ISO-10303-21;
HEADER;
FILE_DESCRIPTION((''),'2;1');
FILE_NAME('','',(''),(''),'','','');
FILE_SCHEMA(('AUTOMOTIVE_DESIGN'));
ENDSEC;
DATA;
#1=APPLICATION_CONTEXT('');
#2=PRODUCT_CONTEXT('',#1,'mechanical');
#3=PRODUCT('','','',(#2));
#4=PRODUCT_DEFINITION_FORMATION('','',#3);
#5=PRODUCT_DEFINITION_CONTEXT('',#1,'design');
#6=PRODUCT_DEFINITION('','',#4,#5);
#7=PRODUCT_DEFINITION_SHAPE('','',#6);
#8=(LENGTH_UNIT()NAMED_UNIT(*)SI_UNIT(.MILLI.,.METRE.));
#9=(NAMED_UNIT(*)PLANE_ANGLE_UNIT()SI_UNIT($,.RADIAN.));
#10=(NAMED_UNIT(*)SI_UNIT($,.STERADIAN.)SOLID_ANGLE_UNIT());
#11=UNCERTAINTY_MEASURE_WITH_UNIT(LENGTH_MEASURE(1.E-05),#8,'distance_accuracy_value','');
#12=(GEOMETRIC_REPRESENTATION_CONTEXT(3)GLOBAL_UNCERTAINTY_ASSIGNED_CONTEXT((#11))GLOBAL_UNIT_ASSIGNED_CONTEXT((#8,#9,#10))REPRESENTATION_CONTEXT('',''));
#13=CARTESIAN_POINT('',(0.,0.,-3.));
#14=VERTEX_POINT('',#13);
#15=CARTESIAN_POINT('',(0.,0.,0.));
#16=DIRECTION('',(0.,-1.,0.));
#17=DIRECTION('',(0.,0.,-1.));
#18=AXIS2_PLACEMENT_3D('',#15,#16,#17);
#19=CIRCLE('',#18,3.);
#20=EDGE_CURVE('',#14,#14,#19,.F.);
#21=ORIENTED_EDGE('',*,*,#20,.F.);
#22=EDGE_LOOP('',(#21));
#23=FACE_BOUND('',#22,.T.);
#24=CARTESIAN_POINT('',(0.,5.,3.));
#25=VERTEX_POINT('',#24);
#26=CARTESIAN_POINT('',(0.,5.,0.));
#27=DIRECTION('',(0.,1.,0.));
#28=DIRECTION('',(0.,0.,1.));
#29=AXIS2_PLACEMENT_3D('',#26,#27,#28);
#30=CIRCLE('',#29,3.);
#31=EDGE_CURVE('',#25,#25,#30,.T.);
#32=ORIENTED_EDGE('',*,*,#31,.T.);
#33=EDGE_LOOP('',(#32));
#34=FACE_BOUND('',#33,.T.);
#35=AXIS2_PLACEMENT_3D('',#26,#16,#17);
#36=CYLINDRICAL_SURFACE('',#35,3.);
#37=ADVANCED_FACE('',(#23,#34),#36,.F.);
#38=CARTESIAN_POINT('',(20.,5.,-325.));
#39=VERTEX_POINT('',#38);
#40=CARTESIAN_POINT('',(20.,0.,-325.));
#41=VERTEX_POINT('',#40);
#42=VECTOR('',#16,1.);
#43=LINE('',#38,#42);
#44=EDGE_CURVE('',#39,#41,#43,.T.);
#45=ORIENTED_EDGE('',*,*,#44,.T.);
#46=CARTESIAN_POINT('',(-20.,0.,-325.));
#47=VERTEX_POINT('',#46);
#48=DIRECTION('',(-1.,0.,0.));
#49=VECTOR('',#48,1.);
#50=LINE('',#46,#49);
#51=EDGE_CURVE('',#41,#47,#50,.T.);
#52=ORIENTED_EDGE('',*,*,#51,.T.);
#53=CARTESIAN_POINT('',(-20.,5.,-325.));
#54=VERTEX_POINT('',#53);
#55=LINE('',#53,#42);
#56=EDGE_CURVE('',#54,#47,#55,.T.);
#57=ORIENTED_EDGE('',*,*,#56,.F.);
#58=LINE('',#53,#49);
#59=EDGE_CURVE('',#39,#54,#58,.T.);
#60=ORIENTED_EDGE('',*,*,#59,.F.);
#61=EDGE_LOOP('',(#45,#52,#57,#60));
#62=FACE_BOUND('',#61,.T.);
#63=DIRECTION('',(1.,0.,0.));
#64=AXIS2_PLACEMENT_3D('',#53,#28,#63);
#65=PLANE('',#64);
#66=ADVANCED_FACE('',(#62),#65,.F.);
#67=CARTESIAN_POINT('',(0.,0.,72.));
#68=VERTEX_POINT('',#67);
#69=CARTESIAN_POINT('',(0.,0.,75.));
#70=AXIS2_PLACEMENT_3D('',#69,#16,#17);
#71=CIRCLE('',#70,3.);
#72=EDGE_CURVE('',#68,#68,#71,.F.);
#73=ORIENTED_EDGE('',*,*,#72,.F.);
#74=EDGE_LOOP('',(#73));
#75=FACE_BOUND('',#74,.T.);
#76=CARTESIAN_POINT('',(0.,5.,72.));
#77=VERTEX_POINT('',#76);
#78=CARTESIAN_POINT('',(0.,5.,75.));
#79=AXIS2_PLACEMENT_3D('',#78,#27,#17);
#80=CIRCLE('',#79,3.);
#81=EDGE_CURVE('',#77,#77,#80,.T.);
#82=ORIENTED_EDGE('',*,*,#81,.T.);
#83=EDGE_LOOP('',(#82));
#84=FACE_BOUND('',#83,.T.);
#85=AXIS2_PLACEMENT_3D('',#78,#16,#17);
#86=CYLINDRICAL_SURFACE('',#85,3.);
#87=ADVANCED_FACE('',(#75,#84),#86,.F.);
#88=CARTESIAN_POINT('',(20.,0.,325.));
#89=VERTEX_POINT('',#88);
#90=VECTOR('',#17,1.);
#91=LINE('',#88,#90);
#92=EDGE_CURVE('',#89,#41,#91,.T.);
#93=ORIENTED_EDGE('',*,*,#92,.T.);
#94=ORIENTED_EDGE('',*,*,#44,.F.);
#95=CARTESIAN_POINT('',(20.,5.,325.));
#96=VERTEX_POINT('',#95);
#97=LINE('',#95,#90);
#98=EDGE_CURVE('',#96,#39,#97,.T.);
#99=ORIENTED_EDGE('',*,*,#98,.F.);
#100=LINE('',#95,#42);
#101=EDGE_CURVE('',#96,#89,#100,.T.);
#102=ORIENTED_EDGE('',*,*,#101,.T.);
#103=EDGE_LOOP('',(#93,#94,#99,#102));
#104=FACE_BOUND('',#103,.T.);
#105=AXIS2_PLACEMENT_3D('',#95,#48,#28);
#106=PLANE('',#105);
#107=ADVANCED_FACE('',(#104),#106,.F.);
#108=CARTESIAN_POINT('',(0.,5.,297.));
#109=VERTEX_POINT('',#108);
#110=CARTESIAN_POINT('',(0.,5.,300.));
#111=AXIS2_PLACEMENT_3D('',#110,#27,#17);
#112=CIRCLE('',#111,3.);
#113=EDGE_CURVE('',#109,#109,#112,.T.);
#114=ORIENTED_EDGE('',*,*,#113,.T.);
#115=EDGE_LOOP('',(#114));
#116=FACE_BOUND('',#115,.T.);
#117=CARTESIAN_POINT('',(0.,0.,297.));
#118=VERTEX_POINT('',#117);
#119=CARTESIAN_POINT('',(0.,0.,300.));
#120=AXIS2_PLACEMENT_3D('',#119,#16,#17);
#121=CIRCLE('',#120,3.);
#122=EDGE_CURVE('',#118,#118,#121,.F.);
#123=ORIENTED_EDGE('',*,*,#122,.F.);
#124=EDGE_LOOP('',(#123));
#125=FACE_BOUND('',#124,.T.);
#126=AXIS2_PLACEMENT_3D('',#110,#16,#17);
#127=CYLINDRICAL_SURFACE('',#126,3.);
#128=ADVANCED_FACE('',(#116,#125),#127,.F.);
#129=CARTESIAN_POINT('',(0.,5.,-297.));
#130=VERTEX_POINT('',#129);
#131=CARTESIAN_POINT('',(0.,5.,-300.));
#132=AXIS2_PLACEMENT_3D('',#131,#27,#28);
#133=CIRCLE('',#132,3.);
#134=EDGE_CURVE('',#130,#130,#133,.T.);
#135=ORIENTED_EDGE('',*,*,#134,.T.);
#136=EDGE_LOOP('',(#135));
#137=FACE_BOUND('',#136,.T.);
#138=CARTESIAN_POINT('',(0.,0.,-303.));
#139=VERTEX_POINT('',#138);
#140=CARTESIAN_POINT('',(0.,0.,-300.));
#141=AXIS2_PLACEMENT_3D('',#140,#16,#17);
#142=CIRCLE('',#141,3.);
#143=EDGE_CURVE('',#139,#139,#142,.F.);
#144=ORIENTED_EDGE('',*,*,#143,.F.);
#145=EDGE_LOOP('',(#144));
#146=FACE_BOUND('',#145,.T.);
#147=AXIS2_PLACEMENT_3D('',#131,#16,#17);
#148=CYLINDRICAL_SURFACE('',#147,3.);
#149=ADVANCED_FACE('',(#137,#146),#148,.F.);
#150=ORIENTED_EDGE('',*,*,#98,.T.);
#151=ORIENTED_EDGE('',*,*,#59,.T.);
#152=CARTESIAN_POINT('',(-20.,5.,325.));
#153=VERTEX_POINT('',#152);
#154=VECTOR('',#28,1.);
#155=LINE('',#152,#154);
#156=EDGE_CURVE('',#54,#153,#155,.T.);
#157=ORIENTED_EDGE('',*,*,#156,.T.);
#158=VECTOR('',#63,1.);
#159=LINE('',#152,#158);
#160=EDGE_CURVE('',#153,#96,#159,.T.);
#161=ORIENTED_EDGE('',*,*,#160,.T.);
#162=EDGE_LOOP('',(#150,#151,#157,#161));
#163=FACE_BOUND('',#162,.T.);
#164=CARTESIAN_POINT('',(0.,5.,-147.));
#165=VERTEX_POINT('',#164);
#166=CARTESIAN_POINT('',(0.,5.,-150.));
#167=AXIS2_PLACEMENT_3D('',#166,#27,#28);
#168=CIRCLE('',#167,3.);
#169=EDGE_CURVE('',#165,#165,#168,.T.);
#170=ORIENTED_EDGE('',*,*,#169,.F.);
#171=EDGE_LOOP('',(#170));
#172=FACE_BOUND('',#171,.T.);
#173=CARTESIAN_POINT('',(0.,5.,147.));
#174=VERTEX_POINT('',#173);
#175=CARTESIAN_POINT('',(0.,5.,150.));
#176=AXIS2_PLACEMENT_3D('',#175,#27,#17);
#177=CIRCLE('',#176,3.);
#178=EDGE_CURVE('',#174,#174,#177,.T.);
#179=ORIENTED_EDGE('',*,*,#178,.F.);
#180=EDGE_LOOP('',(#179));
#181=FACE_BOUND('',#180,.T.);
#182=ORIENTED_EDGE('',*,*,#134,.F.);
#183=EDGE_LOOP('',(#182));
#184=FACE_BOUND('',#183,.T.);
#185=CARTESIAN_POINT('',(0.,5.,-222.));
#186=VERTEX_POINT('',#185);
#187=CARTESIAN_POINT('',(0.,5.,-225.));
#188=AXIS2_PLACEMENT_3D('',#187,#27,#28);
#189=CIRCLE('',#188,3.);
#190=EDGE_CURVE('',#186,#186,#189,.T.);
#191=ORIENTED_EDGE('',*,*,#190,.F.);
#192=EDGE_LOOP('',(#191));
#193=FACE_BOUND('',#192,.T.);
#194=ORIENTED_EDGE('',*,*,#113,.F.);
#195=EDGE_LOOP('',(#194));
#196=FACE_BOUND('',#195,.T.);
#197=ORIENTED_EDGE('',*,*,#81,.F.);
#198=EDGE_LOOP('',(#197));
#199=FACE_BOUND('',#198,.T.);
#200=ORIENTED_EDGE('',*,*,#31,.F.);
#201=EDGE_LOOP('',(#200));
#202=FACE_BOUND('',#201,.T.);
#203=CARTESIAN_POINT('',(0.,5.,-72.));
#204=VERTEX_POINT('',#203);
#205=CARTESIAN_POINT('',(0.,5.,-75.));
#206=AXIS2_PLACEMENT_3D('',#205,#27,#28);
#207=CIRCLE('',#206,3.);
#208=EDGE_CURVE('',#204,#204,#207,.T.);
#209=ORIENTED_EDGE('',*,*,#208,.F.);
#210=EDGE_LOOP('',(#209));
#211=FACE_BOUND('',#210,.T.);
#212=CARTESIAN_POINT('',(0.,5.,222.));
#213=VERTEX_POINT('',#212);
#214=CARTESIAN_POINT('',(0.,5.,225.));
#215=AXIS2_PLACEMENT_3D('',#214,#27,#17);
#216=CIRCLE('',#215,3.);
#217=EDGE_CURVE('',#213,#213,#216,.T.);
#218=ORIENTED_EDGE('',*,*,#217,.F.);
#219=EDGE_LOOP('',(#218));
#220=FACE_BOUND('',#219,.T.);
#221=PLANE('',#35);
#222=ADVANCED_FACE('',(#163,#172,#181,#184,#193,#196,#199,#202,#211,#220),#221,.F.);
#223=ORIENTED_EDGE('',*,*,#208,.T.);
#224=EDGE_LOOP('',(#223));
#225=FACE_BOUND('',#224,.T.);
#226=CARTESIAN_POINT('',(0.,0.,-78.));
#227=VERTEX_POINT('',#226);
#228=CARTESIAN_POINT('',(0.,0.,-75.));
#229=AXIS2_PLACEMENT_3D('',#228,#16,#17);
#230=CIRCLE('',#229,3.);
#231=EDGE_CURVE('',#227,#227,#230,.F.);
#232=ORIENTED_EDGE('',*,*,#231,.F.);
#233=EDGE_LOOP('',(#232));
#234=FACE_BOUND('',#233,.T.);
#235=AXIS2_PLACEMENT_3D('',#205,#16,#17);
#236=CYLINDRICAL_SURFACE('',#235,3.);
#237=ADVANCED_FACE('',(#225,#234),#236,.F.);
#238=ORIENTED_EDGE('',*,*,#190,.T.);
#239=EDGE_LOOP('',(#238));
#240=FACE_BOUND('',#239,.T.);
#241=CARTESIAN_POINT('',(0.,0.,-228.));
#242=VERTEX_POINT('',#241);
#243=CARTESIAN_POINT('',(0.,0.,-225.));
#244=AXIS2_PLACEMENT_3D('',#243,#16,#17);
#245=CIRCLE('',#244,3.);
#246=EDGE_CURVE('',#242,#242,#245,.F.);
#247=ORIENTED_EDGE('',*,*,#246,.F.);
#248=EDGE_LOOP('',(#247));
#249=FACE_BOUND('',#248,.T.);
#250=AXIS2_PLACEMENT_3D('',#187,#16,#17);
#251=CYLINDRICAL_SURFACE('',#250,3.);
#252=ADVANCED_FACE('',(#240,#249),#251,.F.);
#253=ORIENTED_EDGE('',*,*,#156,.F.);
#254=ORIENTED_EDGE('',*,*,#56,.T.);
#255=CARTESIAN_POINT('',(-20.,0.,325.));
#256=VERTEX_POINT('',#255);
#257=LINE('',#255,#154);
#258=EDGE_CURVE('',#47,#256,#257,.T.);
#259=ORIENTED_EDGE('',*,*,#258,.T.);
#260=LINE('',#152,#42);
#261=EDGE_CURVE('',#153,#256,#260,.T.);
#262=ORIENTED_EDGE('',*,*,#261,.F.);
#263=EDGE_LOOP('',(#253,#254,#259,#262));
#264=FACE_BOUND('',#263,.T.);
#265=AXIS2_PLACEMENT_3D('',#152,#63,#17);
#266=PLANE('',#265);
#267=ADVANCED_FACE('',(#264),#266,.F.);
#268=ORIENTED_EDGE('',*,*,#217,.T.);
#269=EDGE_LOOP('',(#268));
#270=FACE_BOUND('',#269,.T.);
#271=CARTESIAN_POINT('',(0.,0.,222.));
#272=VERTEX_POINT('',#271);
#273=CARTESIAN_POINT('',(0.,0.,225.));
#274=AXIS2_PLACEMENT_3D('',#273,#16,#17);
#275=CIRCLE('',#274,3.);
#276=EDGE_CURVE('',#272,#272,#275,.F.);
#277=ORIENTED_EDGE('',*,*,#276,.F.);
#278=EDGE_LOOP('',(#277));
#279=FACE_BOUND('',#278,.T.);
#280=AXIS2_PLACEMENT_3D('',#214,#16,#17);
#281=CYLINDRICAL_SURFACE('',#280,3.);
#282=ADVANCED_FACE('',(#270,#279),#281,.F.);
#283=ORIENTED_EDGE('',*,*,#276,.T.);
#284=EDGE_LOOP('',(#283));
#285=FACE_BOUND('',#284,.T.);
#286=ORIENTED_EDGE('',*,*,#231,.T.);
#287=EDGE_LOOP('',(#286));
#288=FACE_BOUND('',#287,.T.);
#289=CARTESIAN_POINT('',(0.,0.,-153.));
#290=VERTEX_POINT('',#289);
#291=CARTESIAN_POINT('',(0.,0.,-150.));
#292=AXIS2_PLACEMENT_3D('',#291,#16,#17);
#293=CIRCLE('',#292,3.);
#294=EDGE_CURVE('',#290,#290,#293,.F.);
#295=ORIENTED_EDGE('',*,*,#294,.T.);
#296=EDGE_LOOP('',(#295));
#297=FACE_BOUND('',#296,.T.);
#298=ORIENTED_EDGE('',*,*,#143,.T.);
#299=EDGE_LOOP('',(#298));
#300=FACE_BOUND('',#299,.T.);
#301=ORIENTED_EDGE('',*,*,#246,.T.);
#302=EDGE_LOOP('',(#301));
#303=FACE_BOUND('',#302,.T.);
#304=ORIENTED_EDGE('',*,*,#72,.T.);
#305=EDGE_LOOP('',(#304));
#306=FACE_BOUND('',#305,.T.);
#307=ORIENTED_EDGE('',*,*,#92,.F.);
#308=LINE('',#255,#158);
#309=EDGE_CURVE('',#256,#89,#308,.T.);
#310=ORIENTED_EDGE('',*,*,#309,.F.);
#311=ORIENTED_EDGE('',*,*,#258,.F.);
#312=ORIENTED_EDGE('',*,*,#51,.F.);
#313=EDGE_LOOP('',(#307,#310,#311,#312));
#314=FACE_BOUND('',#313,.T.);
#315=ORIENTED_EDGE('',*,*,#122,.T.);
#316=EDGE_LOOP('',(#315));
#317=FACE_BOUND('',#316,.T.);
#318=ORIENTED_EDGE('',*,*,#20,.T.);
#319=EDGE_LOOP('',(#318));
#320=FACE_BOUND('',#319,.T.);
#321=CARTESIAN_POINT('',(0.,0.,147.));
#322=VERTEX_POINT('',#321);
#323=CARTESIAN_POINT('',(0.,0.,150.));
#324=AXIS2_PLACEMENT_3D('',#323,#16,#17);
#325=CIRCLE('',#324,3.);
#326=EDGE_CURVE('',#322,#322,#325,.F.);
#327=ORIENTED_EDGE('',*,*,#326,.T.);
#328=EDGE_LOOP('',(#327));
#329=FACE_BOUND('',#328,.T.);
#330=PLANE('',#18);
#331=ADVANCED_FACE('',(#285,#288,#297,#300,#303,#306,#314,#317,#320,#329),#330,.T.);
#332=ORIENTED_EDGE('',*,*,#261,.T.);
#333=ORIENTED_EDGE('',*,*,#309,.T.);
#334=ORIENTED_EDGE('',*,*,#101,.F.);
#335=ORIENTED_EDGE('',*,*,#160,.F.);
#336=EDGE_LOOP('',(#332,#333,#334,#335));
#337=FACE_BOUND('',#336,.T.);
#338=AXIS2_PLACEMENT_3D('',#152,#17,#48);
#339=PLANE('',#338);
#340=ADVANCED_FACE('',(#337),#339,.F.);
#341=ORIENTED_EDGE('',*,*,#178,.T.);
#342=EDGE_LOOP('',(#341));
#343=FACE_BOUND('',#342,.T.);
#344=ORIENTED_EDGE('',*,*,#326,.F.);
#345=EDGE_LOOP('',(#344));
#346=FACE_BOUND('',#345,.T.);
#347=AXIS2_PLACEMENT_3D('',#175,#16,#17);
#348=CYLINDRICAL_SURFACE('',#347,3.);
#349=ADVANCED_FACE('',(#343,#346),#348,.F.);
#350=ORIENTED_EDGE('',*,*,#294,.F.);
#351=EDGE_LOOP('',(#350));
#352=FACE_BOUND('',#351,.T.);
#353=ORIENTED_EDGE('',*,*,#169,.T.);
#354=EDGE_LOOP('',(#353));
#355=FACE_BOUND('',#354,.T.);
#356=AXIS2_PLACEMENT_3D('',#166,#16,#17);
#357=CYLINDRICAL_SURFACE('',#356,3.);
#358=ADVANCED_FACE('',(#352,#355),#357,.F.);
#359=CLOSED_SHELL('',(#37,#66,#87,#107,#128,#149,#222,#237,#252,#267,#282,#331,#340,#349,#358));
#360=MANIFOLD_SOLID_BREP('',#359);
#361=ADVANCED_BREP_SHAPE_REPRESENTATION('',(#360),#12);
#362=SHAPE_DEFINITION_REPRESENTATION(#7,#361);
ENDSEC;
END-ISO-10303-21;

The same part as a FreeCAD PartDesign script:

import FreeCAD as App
import Part
import Sketcher

doc = App.newDocument("Part")
params = doc.addObject("Spreadsheet::Sheet", "Params")
for row, (alias, value) in enumerate([
    ("sketch1_width", "40 mm"),
    ("sketch1_height", "650 mm"),
    ("pad1_length", "5 mm"),
    ("sketch2_diameter", "6 mm"),
], start=1):
    params.set(f"A{row}", alias)
    params.set(f"B{row}", "=" + value)
    params.setAlias(f"B{row}", alias)

body = doc.addObject("PartDesign::Body", "Body")

# Sketch on XZ plane
sketch1 = doc.addObject("Sketcher::SketchObject", "Sketch")
body.addObject(sketch1)
sketch1.AttachmentSupport = (doc.XZ_Plane, [""])
sketch1.MapMode = "FlatFace"
sketch1.addGeometry([
    Part.LineSegment(App.Vector(-20, -325, 0), App.Vector(-20, 325, 0)),
    Part.LineSegment(App.Vector(-20, 325, 0), App.Vector(20, 325, 0)),
    Part.LineSegment(App.Vector(20, 325, 0), App.Vector(20, -325, 0)),
    Part.LineSegment(App.Vector(20, -325, 0), App.Vector(-20, -325, 0)),
], False)
sketch1.addConstraint([
    Sketcher.Constraint("Coincident", 0, 2, 1, 1),
    Sketcher.Constraint("Coincident", 1, 2, 2, 1),
    Sketcher.Constraint("Coincident", 2, 2, 3, 1),
    Sketcher.Constraint("Coincident", 3, 2, 0, 1),
    Sketcher.Constraint("Vertical", 0),
    Sketcher.Constraint("Horizontal", 1),
    Sketcher.Constraint("Vertical", 2),
    Sketcher.Constraint("Horizontal", 3),
    Sketcher.Constraint("Symmetric", 0, 2, 2, 2, -1, 1),
    Sketcher.Constraint("DistanceX", 1, 1, 1, 2, 40.0),
    Sketcher.Constraint("DistanceY", 0, 1, 0, 2, 650.0),
])
sketch1.setExpression("Constraints[9]", "Params.sketch1_width")
sketch1.setExpression("Constraints[10]", "Params.sketch1_height")
pad1 = doc.addObject("PartDesign::Pad", "Pad")
body.addObject(pad1)
pad1.Profile = sketch1
pad1.setExpression("Length", "Params.pad1_length")
pad1.Reversed = True

# Sketch on XZ plane
sketch2 = doc.addObject("Sketcher::SketchObject", "Sketch001")
body.addObject(sketch2)
sketch2.AttachmentSupport = (doc.XZ_Plane, [""])
sketch2.MapMode = "FlatFace"
sketch2.addGeometry([
    Part.Circle(App.Vector(0, 0, 0), App.Vector(0, 0, 1), 3),  # 0
    Part.Circle(App.Vector(0, -75, 0), App.Vector(0, 0, 1), 3),  # 1
    Part.Circle(App.Vector(0, -150, 0), App.Vector(0, 0, 1), 3),  # 2
    Part.Circle(App.Vector(0, -225, 0), App.Vector(0, 0, 1), 3),  # 3
    Part.Circle(App.Vector(0, -300, 0), App.Vector(0, 0, 1), 3),  # 4
    Part.Circle(App.Vector(0, 300, 0), App.Vector(0, 0, 1), 3),  # 5
    Part.Circle(App.Vector(0, 225, 0), App.Vector(0, 0, 1), 3),  # 6
    Part.Circle(App.Vector(0, 150, 0), App.Vector(0, 0, 1), 3),  # 7
    Part.Circle(App.Vector(0, 75, 0), App.Vector(0, 0, 1), 3),  # 8
], False)
sketch2.addConstraint([
    Sketcher.Constraint("Coincident", 0, 3, -1, 1),
    Sketcher.Constraint("Equal", 0, 1),
    Sketcher.Constraint("Equal", 1, 2),
    Sketcher.Constraint("Equal", 2, 3),
    Sketcher.Constraint("Equal", 3, 4),
    Sketcher.Constraint("Equal", 4, 5),
    Sketcher.Constraint("Equal", 5, 6),
    Sketcher.Constraint("Equal", 6, 7),
    Sketcher.Constraint("Equal", 7, 8),
    Sketcher.Constraint("Symmetric", 4, 3, 5, 3, -1, 1),
    Sketcher.Constraint("Symmetric", 3, 3, 6, 3, -1, 1),
    Sketcher.Constraint("Symmetric", 2, 3, 7, 3, -1, 1),
    Sketcher.Constraint("Symmetric", 1, 3, 8, 3, -1, 1),
    Sketcher.Constraint("PointOnObject", 1, 3, -2),
    Sketcher.Constraint("PointOnObject", 2, 3, -2),
    Sketcher.Constraint("PointOnObject", 3, 3, -2),
    Sketcher.Constraint("PointOnObject", 4, 3, -2),
    Sketcher.Constraint("Diameter", 0, 6.0),
    Sketcher.Constraint("DistanceY", 1, 3, -1, 1, 75.0),
    Sketcher.Constraint("DistanceY", 2, 3, -1, 1, 150.0),
    Sketcher.Constraint("DistanceY", 3, 3, -1, 1, 225.0),
    Sketcher.Constraint("DistanceY", 4, 3, -1, 1, 300.0),
])
sketch2.setExpression("Constraints[17]", "Params.sketch2_diameter")
pocket1 = doc.addObject("PartDesign::Pocket", "Pocket")
body.addObject(pocket1)
pocket1.Profile = sketch2
pocket1.Type = "ThroughAll"
pocket1.Midplane = True

doc.recompute()
